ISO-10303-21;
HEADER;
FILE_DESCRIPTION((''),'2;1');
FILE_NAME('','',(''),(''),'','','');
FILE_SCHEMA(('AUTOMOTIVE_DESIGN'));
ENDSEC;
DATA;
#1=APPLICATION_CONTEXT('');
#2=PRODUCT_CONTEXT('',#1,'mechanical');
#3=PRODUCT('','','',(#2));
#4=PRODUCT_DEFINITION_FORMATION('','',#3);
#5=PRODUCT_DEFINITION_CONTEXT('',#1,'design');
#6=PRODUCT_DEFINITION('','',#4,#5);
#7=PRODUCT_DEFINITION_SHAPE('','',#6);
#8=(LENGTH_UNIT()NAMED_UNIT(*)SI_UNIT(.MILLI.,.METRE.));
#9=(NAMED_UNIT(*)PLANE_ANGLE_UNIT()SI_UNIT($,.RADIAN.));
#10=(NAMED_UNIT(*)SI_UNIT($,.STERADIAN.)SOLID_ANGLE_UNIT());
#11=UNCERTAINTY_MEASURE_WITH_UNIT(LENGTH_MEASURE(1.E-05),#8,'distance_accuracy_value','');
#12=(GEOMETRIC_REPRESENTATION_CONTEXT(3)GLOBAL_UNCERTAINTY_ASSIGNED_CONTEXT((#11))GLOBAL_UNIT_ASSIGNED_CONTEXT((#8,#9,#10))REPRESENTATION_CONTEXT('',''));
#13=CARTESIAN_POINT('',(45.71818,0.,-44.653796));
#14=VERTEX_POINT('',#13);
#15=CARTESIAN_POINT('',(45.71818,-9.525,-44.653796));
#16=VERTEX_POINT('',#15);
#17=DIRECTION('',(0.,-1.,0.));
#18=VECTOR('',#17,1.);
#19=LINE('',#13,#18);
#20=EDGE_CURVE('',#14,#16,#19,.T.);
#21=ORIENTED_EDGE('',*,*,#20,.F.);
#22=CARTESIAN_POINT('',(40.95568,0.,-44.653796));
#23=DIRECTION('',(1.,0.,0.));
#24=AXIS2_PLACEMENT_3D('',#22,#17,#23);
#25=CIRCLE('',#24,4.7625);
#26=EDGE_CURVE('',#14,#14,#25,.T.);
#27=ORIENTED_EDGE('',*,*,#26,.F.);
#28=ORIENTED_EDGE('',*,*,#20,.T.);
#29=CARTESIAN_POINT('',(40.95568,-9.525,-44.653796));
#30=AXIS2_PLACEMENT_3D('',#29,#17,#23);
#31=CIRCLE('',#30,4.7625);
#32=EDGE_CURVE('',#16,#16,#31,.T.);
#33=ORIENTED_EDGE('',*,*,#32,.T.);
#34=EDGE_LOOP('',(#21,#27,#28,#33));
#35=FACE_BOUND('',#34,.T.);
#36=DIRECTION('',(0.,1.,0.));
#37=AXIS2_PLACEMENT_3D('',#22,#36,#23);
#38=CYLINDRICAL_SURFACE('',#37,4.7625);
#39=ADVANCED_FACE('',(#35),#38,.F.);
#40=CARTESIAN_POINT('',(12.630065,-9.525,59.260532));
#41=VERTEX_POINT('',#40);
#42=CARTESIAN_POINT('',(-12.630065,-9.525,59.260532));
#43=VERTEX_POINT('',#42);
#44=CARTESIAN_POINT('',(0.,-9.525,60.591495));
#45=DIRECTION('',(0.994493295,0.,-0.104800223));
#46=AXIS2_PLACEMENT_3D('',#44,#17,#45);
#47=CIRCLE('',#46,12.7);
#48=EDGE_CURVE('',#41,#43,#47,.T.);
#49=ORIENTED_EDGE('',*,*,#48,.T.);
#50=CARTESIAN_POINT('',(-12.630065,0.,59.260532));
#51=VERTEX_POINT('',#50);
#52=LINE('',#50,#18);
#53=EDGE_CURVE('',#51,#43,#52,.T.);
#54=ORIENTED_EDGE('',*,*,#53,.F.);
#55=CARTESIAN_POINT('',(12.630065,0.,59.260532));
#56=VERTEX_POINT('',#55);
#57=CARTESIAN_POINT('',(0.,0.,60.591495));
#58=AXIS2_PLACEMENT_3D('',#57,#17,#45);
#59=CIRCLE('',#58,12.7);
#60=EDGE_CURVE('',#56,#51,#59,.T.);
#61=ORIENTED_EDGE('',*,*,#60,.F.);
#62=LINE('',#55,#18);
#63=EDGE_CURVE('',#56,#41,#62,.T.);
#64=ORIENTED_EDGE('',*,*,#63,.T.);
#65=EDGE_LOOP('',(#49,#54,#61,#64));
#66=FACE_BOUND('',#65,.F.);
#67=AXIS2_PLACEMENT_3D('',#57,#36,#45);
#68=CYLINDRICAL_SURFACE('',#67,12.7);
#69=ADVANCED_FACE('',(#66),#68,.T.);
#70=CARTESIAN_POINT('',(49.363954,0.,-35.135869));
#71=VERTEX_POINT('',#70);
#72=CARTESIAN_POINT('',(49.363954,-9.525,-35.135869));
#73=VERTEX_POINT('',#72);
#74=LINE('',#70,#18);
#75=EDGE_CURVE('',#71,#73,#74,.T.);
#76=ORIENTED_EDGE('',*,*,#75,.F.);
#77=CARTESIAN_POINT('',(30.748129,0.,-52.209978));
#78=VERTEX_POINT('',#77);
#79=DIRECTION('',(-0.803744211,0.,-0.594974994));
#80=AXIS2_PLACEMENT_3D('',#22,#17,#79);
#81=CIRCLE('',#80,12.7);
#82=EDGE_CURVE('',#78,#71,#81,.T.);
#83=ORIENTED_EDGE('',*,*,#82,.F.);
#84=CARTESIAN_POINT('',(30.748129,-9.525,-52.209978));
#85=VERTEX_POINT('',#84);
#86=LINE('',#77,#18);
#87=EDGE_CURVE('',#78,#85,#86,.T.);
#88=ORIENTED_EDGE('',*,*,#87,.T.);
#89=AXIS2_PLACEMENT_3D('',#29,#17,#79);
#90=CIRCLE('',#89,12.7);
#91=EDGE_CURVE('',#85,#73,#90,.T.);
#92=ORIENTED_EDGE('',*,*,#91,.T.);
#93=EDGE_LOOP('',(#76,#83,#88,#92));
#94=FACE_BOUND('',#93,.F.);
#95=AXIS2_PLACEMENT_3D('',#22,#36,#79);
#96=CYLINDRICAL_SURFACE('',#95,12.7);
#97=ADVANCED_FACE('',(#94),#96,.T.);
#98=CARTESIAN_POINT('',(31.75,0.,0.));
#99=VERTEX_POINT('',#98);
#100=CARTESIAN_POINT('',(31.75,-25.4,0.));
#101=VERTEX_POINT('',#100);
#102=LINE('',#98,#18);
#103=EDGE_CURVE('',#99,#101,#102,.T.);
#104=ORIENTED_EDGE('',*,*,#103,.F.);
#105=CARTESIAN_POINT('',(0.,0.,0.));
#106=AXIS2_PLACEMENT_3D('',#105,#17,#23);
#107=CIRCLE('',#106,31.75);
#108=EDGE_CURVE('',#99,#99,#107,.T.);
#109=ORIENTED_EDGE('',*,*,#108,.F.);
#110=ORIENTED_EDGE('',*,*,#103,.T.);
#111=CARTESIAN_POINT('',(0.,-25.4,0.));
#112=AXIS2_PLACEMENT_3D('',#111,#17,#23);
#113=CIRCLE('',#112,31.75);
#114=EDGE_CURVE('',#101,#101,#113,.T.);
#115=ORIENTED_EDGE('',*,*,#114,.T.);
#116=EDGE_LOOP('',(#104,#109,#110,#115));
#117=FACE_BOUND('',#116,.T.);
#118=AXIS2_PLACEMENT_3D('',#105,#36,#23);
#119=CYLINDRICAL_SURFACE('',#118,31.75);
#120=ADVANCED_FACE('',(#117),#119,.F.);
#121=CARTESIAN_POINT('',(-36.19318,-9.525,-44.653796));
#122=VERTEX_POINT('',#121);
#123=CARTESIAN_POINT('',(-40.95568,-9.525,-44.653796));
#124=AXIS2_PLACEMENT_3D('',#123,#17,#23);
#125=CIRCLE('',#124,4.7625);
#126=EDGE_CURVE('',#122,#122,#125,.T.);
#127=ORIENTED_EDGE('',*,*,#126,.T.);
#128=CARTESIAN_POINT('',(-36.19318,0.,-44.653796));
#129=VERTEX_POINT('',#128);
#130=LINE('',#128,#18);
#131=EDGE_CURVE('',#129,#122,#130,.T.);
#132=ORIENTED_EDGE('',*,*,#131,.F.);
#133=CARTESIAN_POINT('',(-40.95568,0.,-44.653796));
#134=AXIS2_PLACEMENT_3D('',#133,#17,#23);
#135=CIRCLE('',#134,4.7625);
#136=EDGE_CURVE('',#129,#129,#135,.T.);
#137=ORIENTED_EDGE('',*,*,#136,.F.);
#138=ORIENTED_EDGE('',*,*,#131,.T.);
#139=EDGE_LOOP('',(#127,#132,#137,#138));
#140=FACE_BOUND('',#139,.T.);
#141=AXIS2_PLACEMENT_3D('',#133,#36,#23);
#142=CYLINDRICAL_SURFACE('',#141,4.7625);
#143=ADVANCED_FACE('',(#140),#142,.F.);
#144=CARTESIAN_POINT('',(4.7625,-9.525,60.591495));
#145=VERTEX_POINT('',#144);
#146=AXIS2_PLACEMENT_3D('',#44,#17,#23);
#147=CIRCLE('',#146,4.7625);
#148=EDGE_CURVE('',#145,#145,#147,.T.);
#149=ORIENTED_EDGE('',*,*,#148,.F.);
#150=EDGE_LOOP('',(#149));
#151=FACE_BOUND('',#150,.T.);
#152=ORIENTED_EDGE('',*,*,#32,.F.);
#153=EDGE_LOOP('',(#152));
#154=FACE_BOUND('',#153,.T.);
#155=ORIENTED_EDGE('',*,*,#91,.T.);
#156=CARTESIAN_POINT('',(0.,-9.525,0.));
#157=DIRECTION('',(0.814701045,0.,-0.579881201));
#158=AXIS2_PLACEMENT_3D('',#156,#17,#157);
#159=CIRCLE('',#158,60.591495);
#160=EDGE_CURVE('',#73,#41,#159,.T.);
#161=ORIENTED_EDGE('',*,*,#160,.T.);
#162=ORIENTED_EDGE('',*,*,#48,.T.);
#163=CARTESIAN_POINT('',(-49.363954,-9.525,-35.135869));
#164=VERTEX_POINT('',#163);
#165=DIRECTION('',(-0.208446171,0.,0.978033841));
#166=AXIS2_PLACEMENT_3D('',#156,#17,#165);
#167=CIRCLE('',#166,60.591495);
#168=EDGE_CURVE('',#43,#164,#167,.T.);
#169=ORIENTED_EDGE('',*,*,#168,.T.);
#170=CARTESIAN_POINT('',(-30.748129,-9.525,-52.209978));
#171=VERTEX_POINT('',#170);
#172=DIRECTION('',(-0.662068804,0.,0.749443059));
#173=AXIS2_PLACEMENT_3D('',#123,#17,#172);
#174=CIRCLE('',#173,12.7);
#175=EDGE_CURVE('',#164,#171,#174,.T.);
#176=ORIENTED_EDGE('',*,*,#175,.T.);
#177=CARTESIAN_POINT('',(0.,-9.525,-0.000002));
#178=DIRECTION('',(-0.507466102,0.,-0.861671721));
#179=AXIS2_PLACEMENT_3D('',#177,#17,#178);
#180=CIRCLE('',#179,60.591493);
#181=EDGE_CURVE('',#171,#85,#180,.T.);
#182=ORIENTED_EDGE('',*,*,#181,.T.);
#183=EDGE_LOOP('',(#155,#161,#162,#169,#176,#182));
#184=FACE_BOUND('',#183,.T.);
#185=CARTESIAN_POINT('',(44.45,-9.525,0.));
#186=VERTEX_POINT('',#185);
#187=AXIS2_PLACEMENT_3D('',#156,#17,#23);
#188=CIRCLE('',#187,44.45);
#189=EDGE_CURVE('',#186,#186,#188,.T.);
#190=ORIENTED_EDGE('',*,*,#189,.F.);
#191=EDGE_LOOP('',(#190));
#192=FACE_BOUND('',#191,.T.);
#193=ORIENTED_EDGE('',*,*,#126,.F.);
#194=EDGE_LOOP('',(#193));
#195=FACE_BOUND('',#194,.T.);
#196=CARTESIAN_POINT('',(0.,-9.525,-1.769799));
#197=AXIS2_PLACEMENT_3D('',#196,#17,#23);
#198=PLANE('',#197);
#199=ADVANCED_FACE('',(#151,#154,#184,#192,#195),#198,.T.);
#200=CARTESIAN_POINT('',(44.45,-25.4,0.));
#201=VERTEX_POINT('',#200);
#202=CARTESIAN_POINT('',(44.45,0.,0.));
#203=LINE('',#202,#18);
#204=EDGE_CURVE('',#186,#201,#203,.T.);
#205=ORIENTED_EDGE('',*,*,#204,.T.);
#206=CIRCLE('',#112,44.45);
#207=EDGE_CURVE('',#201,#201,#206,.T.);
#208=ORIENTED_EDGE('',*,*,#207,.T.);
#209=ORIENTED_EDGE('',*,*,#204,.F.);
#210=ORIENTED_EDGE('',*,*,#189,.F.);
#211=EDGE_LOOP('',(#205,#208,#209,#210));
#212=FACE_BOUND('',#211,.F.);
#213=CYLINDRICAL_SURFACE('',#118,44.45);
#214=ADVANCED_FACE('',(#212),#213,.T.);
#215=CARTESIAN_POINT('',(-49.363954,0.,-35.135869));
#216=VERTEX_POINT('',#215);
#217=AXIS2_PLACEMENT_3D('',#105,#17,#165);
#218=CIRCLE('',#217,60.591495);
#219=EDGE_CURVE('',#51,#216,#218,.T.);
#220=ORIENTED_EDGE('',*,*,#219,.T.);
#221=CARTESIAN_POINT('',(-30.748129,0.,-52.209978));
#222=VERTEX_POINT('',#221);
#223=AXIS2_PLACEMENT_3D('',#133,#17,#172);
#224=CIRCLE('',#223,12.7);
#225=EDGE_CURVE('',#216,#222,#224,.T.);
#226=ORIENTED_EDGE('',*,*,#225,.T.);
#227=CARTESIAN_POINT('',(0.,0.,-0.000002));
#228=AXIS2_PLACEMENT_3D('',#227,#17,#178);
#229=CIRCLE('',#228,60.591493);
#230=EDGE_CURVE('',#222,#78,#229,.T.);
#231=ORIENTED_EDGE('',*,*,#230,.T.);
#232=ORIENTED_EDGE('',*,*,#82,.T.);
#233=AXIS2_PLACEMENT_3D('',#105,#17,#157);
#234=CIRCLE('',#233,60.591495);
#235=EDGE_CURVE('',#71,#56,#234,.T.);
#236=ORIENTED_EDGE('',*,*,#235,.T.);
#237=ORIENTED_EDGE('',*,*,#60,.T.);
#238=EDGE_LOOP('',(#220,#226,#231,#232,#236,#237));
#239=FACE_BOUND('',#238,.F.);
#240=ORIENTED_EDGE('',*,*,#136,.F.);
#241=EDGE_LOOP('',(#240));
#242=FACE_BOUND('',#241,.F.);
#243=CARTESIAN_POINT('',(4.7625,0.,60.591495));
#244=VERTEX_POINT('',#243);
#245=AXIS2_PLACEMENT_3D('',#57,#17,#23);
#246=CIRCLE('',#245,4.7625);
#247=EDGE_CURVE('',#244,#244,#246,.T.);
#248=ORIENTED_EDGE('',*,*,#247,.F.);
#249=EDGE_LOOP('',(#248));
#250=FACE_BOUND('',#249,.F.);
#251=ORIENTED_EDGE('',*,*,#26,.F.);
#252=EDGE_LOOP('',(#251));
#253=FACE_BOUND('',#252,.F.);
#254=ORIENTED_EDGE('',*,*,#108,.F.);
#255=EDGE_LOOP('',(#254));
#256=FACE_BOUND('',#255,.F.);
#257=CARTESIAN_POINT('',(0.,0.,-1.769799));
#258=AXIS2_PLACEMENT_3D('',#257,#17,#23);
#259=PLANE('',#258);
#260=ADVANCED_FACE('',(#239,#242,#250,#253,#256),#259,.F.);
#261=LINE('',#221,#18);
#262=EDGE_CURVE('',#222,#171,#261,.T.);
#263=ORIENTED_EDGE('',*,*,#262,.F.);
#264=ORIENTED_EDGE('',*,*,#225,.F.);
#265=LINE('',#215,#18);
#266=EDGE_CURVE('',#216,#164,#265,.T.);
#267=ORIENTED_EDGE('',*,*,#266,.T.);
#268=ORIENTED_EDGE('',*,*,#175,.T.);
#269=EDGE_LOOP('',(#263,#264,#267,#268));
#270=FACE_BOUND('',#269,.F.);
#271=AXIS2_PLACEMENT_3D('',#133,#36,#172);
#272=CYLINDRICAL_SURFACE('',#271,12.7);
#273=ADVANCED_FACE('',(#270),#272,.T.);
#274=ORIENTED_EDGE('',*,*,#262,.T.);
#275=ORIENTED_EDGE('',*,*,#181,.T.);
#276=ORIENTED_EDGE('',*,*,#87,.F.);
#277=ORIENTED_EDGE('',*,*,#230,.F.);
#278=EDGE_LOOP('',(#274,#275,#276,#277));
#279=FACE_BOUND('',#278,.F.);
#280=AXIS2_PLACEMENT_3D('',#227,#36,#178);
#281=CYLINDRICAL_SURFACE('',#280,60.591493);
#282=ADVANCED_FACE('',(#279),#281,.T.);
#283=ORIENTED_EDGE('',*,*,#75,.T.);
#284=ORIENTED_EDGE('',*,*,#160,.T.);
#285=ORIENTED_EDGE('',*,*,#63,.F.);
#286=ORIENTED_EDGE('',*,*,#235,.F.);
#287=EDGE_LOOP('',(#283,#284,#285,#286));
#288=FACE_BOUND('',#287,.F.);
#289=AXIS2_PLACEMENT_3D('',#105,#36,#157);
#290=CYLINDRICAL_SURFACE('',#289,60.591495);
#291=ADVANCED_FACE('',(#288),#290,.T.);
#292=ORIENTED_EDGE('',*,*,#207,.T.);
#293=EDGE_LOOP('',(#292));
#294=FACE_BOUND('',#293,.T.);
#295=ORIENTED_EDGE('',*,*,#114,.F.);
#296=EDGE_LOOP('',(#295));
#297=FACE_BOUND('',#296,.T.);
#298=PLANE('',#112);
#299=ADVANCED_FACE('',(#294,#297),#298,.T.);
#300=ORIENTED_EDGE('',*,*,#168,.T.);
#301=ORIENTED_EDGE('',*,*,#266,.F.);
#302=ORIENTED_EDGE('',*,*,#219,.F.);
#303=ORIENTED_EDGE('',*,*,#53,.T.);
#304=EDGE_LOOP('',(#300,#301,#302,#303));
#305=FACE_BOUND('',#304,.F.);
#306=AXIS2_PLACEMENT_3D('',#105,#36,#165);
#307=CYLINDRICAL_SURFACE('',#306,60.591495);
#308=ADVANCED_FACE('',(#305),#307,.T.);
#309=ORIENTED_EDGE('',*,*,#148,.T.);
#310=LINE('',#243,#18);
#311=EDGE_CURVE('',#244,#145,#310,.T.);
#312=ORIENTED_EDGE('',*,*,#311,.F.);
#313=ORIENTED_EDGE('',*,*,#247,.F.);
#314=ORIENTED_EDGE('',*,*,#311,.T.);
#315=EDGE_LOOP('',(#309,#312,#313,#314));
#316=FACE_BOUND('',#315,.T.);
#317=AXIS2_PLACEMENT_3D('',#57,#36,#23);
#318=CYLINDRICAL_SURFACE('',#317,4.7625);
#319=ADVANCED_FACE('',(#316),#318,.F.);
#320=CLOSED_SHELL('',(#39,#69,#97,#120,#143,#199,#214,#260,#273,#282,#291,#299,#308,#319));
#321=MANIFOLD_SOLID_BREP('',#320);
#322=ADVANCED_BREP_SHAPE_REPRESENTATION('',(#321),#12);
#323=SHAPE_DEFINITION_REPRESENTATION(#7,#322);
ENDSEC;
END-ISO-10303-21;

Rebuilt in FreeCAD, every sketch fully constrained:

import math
import FreeCAD as App
import Part
import Sketcher
Q = App.Units.Quantity

doc = App.newDocument("Part")
params = doc.addObject("Spreadsheet::Sheet", "Params")
for row, (alias, value) in enumerate([
    ("sketch1_diameter", "3.5 in"),
    ("sketch1_diameter2", "2.5 in"),
    ("pad1_length", "1 in"),
    ("sketch2_diameter", "3.5 in"),
    ("sketch2_radius", "0.5 in"),
    ("sketch2_diameter2", "0.375 in"),
    ("pad2_length", "0.375 in"),
], start=1):
    params.set(f"A{row}", alias)
    params.set(f"B{row}", "=" + value)
    params.setAlias(f"B{row}", alias)

body = doc.addObject("PartDesign::Body", "Body")

# Sketch on XZ plane
sketch1 = body.newObject("Sketcher::SketchObject", "Sketch")
sketch1.AttachmentSupport = (doc.getObject("XZ_Plane"), [""])
sketch1.MapMode = "FlatFace"
sketch1.addGeometry([
    Part.Circle(App.Vector(0, 0, 0), App.Vector(0, 0, 1), 44.45),
    Part.Circle(App.Vector(0, 0, 0), App.Vector(0, 0, 1), 31.75),
], False)
sketch1.addConstraint([
    Sketcher.Constraint("Coincident", 0, 3, -1, 1),
    Sketcher.Constraint("Coincident", 1, 3, -1, 1),
    Sketcher.Constraint("Diameter", 0, Q("3.5 in")),
    Sketcher.Constraint("Diameter", 1, Q("2.5 in")),
])
sketch1.setExpression("Constraints[2]", "Params.sketch1_diameter")
sketch1.setExpression("Constraints[3]", "Params.sketch1_diameter2")
pad1 = body.newObject("PartDesign::Pad", "Pad")
pad1.Profile = sketch1
pad1.setExpression("Length", "Params.pad1_length")

# Sketch on XZ plane
sketch2 = body.newObject("Sketcher::SketchObject", "Sketch001")
sketch2.AttachmentSupport = (doc.getObject("XZ_Plane"), [""])
sketch2.MapMode = "FlatFace"
sketch2.addGeometry([
    Part.ArcOfCircle(Part.Circle(App.Vector(40.95568, -44.653796, 0), App.Vector(0, 0, 1), 12.7), math.radians(-143.48915), math.radians(48.542157)),  # 0
    Part.ArcOfCircle(Part.Circle(App.Vector(0, 0, 0), App.Vector(0, 0, 1), 60.591495), math.radians(-35.442187), math.radians(77.968691)),  # 1
    Part.ArcOfCircle(Part.Circle(App.Vector(0, 60.591495, 0), App.Vector(0, 0, 1), 12.7), math.radians(-6.015657), math.radians(186.015657)),  # 2
    Part.ArcOfCircle(Part.Circle(App.Vector(0, 0, 0), App.Vector(0, 0, 1), 60.591495), math.radians(102.031309), math.radians(215.442187)),  # 3
    Part.ArcOfCircle(Part.Circle(App.Vector(-40.95568, -44.653796, 0), App.Vector(0, 0, 1), 12.7), math.radians(131.457843), math.radians(323.48915)),  # 4
    Part.ArcOfCircle(Part.Circle(App.Vector(0, -0.000002, 0), App.Vector(0, 0, 1), 60.591493), math.radians(-120.495195), math.radians(-59.504805)),  # 5
    Part.Circle(App.Vector(-40.95568, -44.653796, 0), App.Vector(0, 0, 1), 4.7625),  # 6
    Part.Circle(App.Vector(40.95568, -44.653796, 0), App.Vector(0, 0, 1), 4.7625),  # 7
    Part.Circle(App.Vector(0, 0, 0), App.Vector(0, 0, 1), 44.45),  # 8
    Part.Circle(App.Vector(0, 60.591495, 0), App.Vector(0, 0, 1), 4.7625),  # 9
], False)
sketch2.addConstraint([
    Sketcher.Constraint("Coincident", 0, 2, 1, 1),
    Sketcher.Constraint("Coincident", 1, 2, 2, 1),
    Sketcher.Constraint("Coincident", 2, 2, 3, 1),
    Sketcher.Constraint("Coincident", 3, 2, 4, 1),
    Sketcher.Constraint("Coincident", 4, 2, 5, 1),
    Sketcher.Constraint("Coincident", 5, 2, 0, 1),
    Sketcher.Constraint("Coincident", 1, 3, -1, 1),
    Sketcher.Constraint("Coincident", 3, 3, -1, 1),
    Sketcher.Constraint("Coincident", 5, 3, -1, 1),
    Sketcher.Constraint("Coincident", 8, 3, -1, 1),
    Sketcher.Constraint("Coincident", 6, 3, 4, 3),
    Sketcher.Constraint("Coincident", 7, 3, 0, 3),
    Sketcher.Constraint("Coincident", 9, 3, 2, 3),
    Sketcher.Constraint("Equal", 0, 2),
    Sketcher.Constraint("Equal", 1, 3),
    Sketcher.Constraint("Equal", 2, 4),
    Sketcher.Constraint("Equal", 3, 5),
    Sketcher.Constraint("Equal", 6, 7),
    Sketcher.Constraint("Equal", 7, 9),
    Sketcher.Constraint("Symmetric", 0, 3, 4, 3, -2),
    Sketcher.Constraint("PointOnObject", 2, 3, -2),
    Sketcher.Constraint("Diameter", 8, Q("3.5 in")),
    Sketcher.Constraint("Radius", 0, Q("0.5 in")),
    Sketcher.Constraint("Diameter", 6, Q("0.375 in")),
    Sketcher.Constraint("Radius", 1, 60.591495),
    Sketcher.Constraint("DistanceY", 1, 2, 2, 3, Q("0.0524001 in")),
    Sketcher.Constraint("DistanceX", -1, 1, 0, 3, 40.95568),
    Sketcher.Constraint("DistanceY", 0, 2, -1, 1, 35.135869),
])
sketch2.setExpression("Constraints[21]", "Params.sketch2_diameter")
sketch2.setExpression("Constraints[22]", "Params.sketch2_radius")
sketch2.setExpression("Constraints[23]", "Params.sketch2_diameter2")
pad2 = body.newObject("PartDesign::Pad", "Pad001")
pad2.Profile = sketch2
pad2.setExpression("Length", "Params.pad2_length")

doc.recompute()
